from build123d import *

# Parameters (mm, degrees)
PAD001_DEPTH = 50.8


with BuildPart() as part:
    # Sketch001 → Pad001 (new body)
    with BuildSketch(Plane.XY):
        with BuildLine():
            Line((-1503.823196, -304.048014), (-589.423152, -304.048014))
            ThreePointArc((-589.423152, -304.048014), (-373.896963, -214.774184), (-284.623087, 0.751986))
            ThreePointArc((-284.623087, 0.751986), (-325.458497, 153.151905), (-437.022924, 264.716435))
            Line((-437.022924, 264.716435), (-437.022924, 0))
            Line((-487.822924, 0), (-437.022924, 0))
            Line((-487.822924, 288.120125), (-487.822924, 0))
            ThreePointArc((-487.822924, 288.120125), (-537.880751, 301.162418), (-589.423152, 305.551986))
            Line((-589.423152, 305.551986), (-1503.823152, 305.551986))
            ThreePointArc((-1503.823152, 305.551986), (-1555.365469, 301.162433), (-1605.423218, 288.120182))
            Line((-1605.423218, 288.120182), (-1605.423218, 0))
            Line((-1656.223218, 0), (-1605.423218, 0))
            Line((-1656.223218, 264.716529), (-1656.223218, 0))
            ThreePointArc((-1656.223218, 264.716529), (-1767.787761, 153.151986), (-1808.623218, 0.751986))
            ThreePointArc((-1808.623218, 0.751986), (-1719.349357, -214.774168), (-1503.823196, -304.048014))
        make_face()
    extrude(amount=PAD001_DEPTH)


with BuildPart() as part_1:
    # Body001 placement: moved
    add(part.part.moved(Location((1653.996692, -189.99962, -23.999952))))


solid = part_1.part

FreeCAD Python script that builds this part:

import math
import FreeCAD as App
import Part
import Sketcher
from FreeCAD import Vector
Q = App.Units.Quantity

doc = App.newDocument("Part")
body = doc.addObject("PartDesign::Body", "Body")

# Sketch on XY plane
sketch1 = doc.addObject("Sketcher::SketchObject", "Sketch")
body.addObject(sketch1)
sketch1.AttachmentSupport = (doc.XY_Plane, [""])
sketch1.MapMode = "FlatFace"
sketch1.addGeometry(Part.LineSegment(Vector(-1503.823196, -304.048014, 0), Vector(-589.423152, -304.048014, 0)), False)
sketch1.addGeometry(Part.ArcOfCircle(Part.Circle(Vector(-589.423087, 0.751986, 0), Vector(0, 0, 1), 304.8), math.radians(-90.000012), math.radians(0)), False)
sketch1.addGeometry(Part.ArcOfCircle(Part.Circle(Vector(-589.423086, 0.751986, 0), Vector(0, 0, 1), 304.799999), math.radians(0), math.radians(59.999965)), False)
sketch1.addGeometry(Part.LineSegment(Vector(-437.022924, 264.716435, 0), Vector(-437.022924, 0, 0)), False)
sketch1.addGeometry(Part.LineSegment(Vector(-437.022924, 0, 0), Vector(-487.822924, 0, 0)), False)
sketch1.addGeometry(Part.LineSegment(Vector(-487.822924, 0, 0), Vector(-487.822924, 288.120125, 0)), False)
sketch1.addGeometry(Part.ArcOfCircle(Part.Circle(Vector(-589.423088, 0.751967, 0), Vector(0, 0, 1), 304.800019), math.radians(70.528748), math.radians(90.000012)), False)
sketch1.addGeometry(Part.LineSegment(Vector(-589.423152, 305.551986, 0), Vector(-1503.823152, 305.551986, 0)), False)
sketch1.addGeometry(Part.ArcOfCircle(Part.Circle(Vector(-1503.823224, 0.752016, 0), Vector(0, 0, 1), 304.79997), math.radians(89.999987), math.radians(109.471222)), False)
sketch1.addGeometry(Part.LineSegment(Vector(-1605.423218, 288.120182, 0), Vector(-1605.423218, 0, 0)), False)
sketch1.addGeometry(Part.LineSegment(Vector(-1605.423218, 0, 0), Vector(-1656.223218, 0, 0)), False)
sketch1.addGeometry(Part.LineSegment(Vector(-1656.223218, 0, 0), Vector(-1656.223218, 264.716529, 0)), False)
sketch1.addGeometry(Part.ArcOfCircle(Part.Circle(Vector(-1503.823218, 0.751986, 0), Vector(0, 0, 1), 304.8), math.radians(120), math.radians(180)), False)
sketch1.addGeometry(Part.ArcOfCircle(Part.Circle(Vector(-1503.823217, 0.751987, 0), Vector(0, 0, 1), 304.800001), math.radians(-180), math.radians(-89.999996)), False)
sketch1.addConstraint(Sketcher.Constraint("Coincident", 0, 2, 1, 1))
sketch1.addConstraint(Sketcher.Constraint("Coincident", 1, 2, 2, 1))
sketch1.addConstraint(Sketcher.Constraint("Coincident", 2, 2, 3, 1))
sketch1.addConstraint(Sketcher.Constraint("Coincident", 3, 2, 4, 1))
sketch1.addConstraint(Sketcher.Constraint("Coincident", 4, 2, 5, 1))
sketch1.addConstraint(Sketcher.Constraint("Coincident", 5, 2, 6, 1))
sketch1.addConstraint(Sketcher.Constraint("Coincident", 6, 2, 7, 1))
sketch1.addConstraint(Sketcher.Constraint("Coincident", 7, 2, 8, 1))
sketch1.addConstraint(Sketcher.Constraint("Coincident", 8, 2, 9, 1))
sketch1.addConstraint(Sketcher.Constraint("Coincident", 9, 2, 10, 1))
sketch1.addConstraint(Sketcher.Constraint("Coincident", 10, 2, 11, 1))
sketch1.addConstraint(Sketcher.Constraint("Coincident", 11, 2, 12, 1))
sketch1.addConstraint(Sketcher.Constraint("Coincident", 12, 2, 13, 1))
sketch1.addConstraint(Sketcher.Constraint("Coincident", 13, 2, 0, 1))
sketch1.addConstraint(Sketcher.Constraint("Horizontal", 0))
sketch1.addConstraint(Sketcher.Constraint("Vertical", 3))
sketch1.addConstraint(Sketcher.Constraint("Horizontal", 4))
sketch1.addConstraint(Sketcher.Constraint("Vertical", 5))
sketch1.addConstraint(Sketcher.Constraint("Horizontal", 7))
sketch1.addConstraint(Sketcher.Constraint("Vertical", 9))
sketch1.addConstraint(Sketcher.Constraint("Horizontal", 10))
sketch1.addConstraint(Sketcher.Constraint("Vertical", 11))
sketch1.addConstraint(Sketcher.Constraint("Coincident", 2, 3, 1, 3))
sketch1.addConstraint(Sketcher.Constraint("Coincident", 13, 3, 12, 3))
sketch1.addConstraint(Sketcher.Constraint("PointOnObject", 3, 2, -1))
sketch1.addConstraint(Sketcher.Constraint("PointOnObject", 9, 2, -1))
sketch1.addConstraint(Sketcher.Constraint("Radius", 1, Q("12 in")))
sketch1.addConstraint(Sketcher.Constraint("Radius", 12, Q("12 in")))
sketch1.addConstraint(Sketcher.Constraint("DistanceX", 4, 2, 4, 1, Q("2 in")))
sketch1.addConstraint(Sketcher.Constraint("DistanceX", 7, 2, 7, 1, Q("36 in")))
sketch1.addConstraint(Sketcher.Constraint("DistanceX", 10, 2, 10, 1, Q("2 in")))
sketch1.addConstraint(Sketcher.Constraint("DistanceX", 6, 3, 1, 2, Q("12 in")))
sketch1.addConstraint(Sketcher.Constraint("DistanceY", 0, 2, 1, 2, Q("12 in")))
sketch1.addConstraint(Sketcher.Constraint("DistanceY", 2, 3, 6, 2, Q("12 in")))
sketch1.addConstraint(Sketcher.Constraint("DistanceX", 8, 2, 13, 3, Q("4.0000001 in")))
sketch1.addConstraint(Sketcher.Constraint("Radius", 6, Q("304.800019 mm")))
sketch1.addConstraint(Sketcher.Constraint("Radius", 8, Q("304.79997 mm")))
sketch1.addConstraint(Sketcher.Constraint("DistanceY", 9, 2, 9, 1, Q("288.120182 mm")))
sketch1.addConstraint(Sketcher.Constraint("DistanceY", 11, 1, 11, 2, Q("264.716529 mm")))
sketch1.addConstraint(Sketcher.Constraint("DistanceX", 0, 1, 0, 2, Q("914.400044 mm")))
sketch1.addConstraint(Sketcher.Constraint("DistanceY", 3, 2, 3, 1, Q("264.716435 mm")))
sketch1.addConstraint(Sketcher.Constraint("DistanceX", 6, 3, -1, 1, Q("589.423088 mm")))
sketch1.addConstraint(Sketcher.Constraint("DistanceX", 0, 2, -1, 1, Q("589.423152 mm")))
sketch1.addConstraint(Sketcher.Constraint("DistanceX", 6, 2, -1, 1, Q("589.423152 mm")))
sketch1.addConstraint(Sketcher.Constraint("DistanceX", 9, 2, -1, 1, Q("1605.423218 mm")))
sketch1.addConstraint(Sketcher.Constraint("DistanceY", -1, 1, 12, 2, Q("0.751986 mm")))
pad1 = doc.addObject("PartDesign::Pad", "Pad")
body.addObject(pad1)
pad1.Profile = sketch1
pad1.Length = Q("2 in")
body2 = doc.addObject("PartDesign::Body", "Body001")
doc.recompute()

body.Placement = App.Placement(Vector(1653.996692, -189.99962, -23.999952), App.Rotation(Vector(0, 0, 1), 0))
boolean = doc.addObject("PartDesign::Boolean", "Boolean")
body2.addObject(boolean)
boolean.Type = "Fuse"
boolean.addObjects([body])

doc.recompute()
